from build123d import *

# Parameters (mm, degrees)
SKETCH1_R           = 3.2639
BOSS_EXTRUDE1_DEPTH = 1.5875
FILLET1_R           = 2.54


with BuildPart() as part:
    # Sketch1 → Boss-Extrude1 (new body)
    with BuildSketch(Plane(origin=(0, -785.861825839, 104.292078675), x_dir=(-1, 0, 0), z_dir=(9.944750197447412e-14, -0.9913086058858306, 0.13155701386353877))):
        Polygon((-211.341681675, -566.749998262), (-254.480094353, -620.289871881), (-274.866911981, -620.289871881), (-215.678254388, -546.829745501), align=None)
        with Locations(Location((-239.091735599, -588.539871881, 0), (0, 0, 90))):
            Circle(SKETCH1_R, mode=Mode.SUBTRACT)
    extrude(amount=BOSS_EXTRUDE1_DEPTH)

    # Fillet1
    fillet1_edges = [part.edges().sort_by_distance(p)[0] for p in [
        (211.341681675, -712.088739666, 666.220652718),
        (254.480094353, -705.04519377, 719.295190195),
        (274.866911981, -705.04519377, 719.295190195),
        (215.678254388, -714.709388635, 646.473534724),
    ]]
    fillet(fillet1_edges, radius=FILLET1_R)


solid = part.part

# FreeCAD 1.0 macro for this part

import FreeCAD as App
import Part
import Sketcher

V = App.Vector
Q = App.Units.Quantity


def edges_at(feature, points):
    """Names of the edges that pass closest to the given points."""
    edges = feature.Shape.Edges
    near = lambda p: min(range(len(edges)), key=lambda i: edges[i].distToShape(Part.Vertex(*p))[0])
    return sorted({f"Edge{near(p) + 1}" for p in points})

doc = App.newDocument("Part")
params = doc.addObject("Spreadsheet::Sheet", "Params")
for row, (alias, value) in enumerate([
    ("sketch1_diameter", "0.257 in"),
    ("pad1_length", "0.0625 in"),
    ("fillet_radius", "0.1 in"),
], start=1):
    params.set(f"A{row}", alias)
    params.set(f"B{row}", "=" + value)
    params.setAlias(f"B{row}", alias)

body = doc.addObject("PartDesign::Body", "Body")

# Sketch on an angled plane
sketch1 = body.newObject("Sketcher::SketchObject", "Sketch")
sketch1.Placement = App.Placement(V(0, -785.861826, 104.292079), App.Rotation(V(-1, 0, 0), V(0, -0.131557014, -0.991308606), V(0, -0.991308606, 0.131557014), "ZXY"))
sketch1.addGeometry([
    Part.LineSegment(V(-254.5, -620.3, 0), V(-211.3, -566.7, 0)),  # 0
    Part.LineSegment(V(-211.3, -566.7, 0), V(-215.7, -546.8, 0)),  # 1
    Part.LineSegment(V(-215.7, -546.8, 0), V(-274.9, -620.3, 0)),  # 2
    Part.LineSegment(V(-274.9, -620.3, 0), V(-254.5, -620.3, 0)),  # 3
    Part.Circle(V(-239.1, -588.5, 0), V(0, 0, 1), 3.3),  # 4
], False)
sketch1.addConstraint([
    Sketcher.Constraint("Coincident", 0, 2, 1, 1),
    Sketcher.Constraint("Coincident", 1, 2, 2, 1),
    Sketcher.Constraint("Coincident", 2, 2, 3, 1),
    Sketcher.Constraint("Coincident", 3, 2, 0, 1),
    Sketcher.Constraint("Horizontal", 3),
    Sketcher.Constraint("Parallel", 0, 2),
    Sketcher.Constraint("Diameter", 4, Q("0.257 in")),
    Sketcher.Constraint("DistanceY", 2, 2, 4, 3, Q("1.25 in")),
    Sketcher.Constraint("DistanceY", 0, 2, -1, 1, 566.749998),
    Sketcher.Constraint("DistanceX", 3, 1, 3, 2, 20.386818),
    Sketcher.Constraint("DistanceX", 0, 2, -1, 1, 211.341682),
    Sketcher.Constraint("DistanceX", 2, 2, -1, 1, 274.866912),
    Sketcher.Constraint("DistanceX", 4, 3, 1, 2, 23.413481),
    Sketcher.Constraint("DistanceX", 3, 2, 4, 3, 15.388359),
    Sketcher.Constraint("Distance", 0, 68.756387),
])
sketch1.setExpression("Constraints[6]", "Params.sketch1_diameter")
pad1 = body.newObject("PartDesign::Pad", "Pad")
pad1.Profile = sketch1
pad1.setExpression("Length", "Params.pad1_length")
doc.recompute()

fillet = body.newObject("PartDesign::Fillet", "Fillet")
fillet.Base = (pad1, edges_at(pad1, [
    (211.342, -712.089, 666.221),
    (254.48, -705.045, 719.295),
    (274.867, -705.045, 719.295),
    (215.678, -714.709, 646.474),
]))
fillet.setExpression("Radius", "Params.fillet_radius")

doc.recompute()
